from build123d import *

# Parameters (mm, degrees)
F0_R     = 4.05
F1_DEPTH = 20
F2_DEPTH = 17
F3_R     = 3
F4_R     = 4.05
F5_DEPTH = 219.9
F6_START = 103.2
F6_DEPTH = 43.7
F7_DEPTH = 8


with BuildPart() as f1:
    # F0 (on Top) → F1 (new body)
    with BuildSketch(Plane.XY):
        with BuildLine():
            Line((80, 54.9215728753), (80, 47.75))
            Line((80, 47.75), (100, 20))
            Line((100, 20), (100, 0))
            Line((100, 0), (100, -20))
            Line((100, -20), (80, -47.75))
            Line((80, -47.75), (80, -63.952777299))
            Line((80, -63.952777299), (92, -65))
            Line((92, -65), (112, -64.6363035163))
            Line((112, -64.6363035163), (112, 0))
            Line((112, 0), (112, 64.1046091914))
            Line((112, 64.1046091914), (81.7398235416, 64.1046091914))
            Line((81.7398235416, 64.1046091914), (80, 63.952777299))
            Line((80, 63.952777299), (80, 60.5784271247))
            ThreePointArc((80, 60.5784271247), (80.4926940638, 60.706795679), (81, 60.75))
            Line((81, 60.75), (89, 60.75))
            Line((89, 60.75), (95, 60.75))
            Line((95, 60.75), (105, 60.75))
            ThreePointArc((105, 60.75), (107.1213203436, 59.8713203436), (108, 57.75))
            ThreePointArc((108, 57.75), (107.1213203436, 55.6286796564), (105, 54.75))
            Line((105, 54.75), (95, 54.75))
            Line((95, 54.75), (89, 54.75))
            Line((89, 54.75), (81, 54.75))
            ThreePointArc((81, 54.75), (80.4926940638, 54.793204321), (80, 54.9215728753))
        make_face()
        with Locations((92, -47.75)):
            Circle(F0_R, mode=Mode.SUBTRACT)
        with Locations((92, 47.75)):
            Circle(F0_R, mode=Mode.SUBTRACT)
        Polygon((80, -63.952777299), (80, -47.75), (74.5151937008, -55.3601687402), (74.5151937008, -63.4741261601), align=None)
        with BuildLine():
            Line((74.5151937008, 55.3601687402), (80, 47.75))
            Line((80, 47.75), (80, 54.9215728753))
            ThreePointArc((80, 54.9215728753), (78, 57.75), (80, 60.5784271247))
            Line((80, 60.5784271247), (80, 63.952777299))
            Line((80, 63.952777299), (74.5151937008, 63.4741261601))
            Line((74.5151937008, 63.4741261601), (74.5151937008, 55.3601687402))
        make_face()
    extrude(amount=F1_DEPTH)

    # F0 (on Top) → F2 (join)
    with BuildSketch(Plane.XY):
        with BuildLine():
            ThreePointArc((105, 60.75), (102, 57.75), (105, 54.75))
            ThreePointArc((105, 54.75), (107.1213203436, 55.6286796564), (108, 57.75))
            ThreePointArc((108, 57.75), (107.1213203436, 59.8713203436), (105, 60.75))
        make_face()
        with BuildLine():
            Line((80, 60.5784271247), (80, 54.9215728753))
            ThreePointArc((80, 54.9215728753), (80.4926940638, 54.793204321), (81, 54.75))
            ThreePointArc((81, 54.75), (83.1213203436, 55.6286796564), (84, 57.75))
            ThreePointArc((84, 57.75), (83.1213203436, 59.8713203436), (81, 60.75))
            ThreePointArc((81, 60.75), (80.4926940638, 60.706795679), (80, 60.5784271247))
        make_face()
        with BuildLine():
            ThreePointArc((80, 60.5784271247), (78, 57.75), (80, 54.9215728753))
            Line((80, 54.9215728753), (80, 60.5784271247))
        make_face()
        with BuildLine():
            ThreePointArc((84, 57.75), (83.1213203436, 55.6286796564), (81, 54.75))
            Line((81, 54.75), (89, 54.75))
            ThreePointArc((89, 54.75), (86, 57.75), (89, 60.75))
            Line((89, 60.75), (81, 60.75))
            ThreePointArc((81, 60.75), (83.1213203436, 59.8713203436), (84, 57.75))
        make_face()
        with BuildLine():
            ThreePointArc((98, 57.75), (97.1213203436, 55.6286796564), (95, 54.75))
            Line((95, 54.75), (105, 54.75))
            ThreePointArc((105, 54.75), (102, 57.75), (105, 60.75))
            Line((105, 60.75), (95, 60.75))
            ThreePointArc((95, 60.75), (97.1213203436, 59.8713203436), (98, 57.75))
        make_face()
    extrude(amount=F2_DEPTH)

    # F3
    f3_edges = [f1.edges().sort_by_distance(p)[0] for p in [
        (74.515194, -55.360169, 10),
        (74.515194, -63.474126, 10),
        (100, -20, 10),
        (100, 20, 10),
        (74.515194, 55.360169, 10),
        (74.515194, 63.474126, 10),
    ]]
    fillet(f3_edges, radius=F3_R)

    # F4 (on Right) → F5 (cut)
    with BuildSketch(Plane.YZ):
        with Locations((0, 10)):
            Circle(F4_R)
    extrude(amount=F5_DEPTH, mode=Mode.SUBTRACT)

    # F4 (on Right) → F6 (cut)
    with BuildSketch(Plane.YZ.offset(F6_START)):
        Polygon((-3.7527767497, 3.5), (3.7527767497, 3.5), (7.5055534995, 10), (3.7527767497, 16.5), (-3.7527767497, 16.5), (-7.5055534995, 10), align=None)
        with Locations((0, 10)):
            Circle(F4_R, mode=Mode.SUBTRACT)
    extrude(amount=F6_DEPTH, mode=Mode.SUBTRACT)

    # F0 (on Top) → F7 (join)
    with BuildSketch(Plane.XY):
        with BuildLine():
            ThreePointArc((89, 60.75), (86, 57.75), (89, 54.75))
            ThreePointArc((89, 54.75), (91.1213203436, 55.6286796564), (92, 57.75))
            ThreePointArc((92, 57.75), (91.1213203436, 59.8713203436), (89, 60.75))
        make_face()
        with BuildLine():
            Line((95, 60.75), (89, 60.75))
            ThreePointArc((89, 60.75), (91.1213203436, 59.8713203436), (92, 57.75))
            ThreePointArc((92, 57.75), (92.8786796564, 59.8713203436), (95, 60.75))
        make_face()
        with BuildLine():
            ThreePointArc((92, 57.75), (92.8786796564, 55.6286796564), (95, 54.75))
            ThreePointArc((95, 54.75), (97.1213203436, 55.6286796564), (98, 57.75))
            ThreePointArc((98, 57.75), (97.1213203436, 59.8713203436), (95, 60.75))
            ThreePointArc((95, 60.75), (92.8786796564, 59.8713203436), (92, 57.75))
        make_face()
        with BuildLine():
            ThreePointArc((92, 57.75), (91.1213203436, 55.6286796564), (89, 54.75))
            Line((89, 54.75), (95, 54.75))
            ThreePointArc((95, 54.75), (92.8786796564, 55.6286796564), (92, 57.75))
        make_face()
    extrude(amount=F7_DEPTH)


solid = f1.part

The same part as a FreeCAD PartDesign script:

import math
import FreeCAD as App
import Part
import Sketcher
from FreeCAD import Vector
Q = App.Units.Quantity


def edges_at(feature, points):
    """Names of the edges that pass closest to the given points."""
    edges = feature.Shape.Edges
    near = lambda p: min(range(len(edges)), key=lambda i: edges[i].distToShape(Part.Vertex(*p))[0])
    return sorted({f"Edge{near(p) + 1}" for p in points})

doc = App.newDocument("Part")
body = doc.addObject("PartDesign::Body", "Body")

# Sketch on XY plane
sketch1 = body.newObject("Sketcher::SketchObject", "Sketch")
sketch1.AttachmentSupport = (doc.getObject("XY_Plane"), [""])
sketch1.MapMode = "FlatFace"
sketch1.addGeometry(Part.LineSegment(Vector(80, 47.75, 0), Vector(100, 20, 0)), False)
sketch1.addGeometry(Part.LineSegment(Vector(100, 20, 0), Vector(100, -20, 0)), False)
sketch1.addGeometry(Part.LineSegment(Vector(100, -20, 0), Vector(80, -47.75, 0)), False)
sketch1.addGeometry(Part.LineSegment(Vector(80, -47.75, 0), Vector(74.515194, -55.360169, 0)), False)
sketch1.addGeometry(Part.LineSegment(Vector(74.515194, -55.360169, 0), Vector(74.515194, -63.474126, 0)), False)
sketch1.addGeometry(Part.LineSegment(Vector(74.515194, -63.474126, 0), Vector(80, -63.952777, 0)), False)
sketch1.addGeometry(Part.LineSegment(Vector(80, -63.952777, 0), Vector(92, -65, 0)), False)
sketch1.addGeometry(Part.LineSegment(Vector(92, -65, 0), Vector(112, -64.636304, 0)), False)
sketch1.addGeometry(Part.LineSegment(Vector(112, -64.636304, 0), Vector(112, 64.104609, 0)), False)
sketch1.addGeometry(Part.LineSegment(Vector(112, 64.104609, 0), Vector(81.739824, 64.104609, 0)), False)
sketch1.addGeometry(Part.LineSegment(Vector(81.739824, 64.104609, 0), Vector(80, 63.952777, 0)), False)
sketch1.addGeometry(Part.LineSegment(Vector(80, 63.952777, 0), Vector(74.515194, 63.474126, 0)), False)
sketch1.addGeometry(Part.LineSegment(Vector(74.515194, 63.474126, 0), Vector(74.515194, 55.360169, 0)), False)
sketch1.addGeometry(Part.LineSegment(Vector(74.515194, 55.360169, 0), Vector(80, 47.75, 0)), False)
sketch1.addGeometry(Part.ArcOfCircle(Part.Circle(Vector(81, 57.75, 0), Vector(0, 0, 1), 3), math.radians(90), math.radians(109.471221)), False)
sketch1.addGeometry(Part.LineSegment(Vector(81, 60.75, 0), Vector(105, 60.75, 0)), False)
sketch1.addGeometry(Part.ArcOfCircle(Part.Circle(Vector(105, 57.75, 0), Vector(0, 0, 1), 3), math.radians(0), math.radians(90)), False)
sketch1.addGeometry(Part.ArcOfCircle(Part.Circle(Vector(105, 57.75, 0), Vector(0, 0, 1), 3), math.radians(-90), math.radians(0)), False)
sketch1.addGeometry(Part.LineSegment(Vector(105, 54.75, 0), Vector(81, 54.75, 0)), False)
sketch1.addGeometry(Part.ArcOfCircle(Part.Circle(Vector(81, 57.75, 0), Vector(0, 0, 1), 3), math.radians(-109.471221), math.radians(-90)), False)
sketch1.addGeometry(Part.ArcOfCircle(Part.Circle(Vector(81, 57.75, 0), Vector(0, 0, 1), 3), math.radians(109.471221), math.radians(250.528779)), False)
sketch1.addGeometry(Part.Circle(Vector(92, -47.75, 0), Vector(0, 0, 1), 4.05), False)
sketch1.addGeometry(Part.Circle(Vector(92, 47.75, 0), Vector(0, 0, 1), 4.05), False)
sketch1.addConstraint(Sketcher.Constraint("Coincident", 0, 2, 1, 1))
sketch1.addConstraint(Sketcher.Constraint("Coincident", 1, 2, 2, 1))
sketch1.addConstraint(Sketcher.Constraint("Coincident", 2, 2, 3, 1))
sketch1.addConstraint(Sketcher.Constraint("Coincident", 3, 2, 4, 1))
sketch1.addConstraint(Sketcher.Constraint("Coincident", 4, 2, 5, 1))
sketch1.addConstraint(Sketcher.Constraint("Coincident", 5, 2, 6, 1))
sketch1.addConstraint(Sketcher.Constraint("Coincident", 6, 2, 7, 1))
sketch1.addConstraint(Sketcher.Constraint("Coincident", 7, 2, 8, 1))
sketch1.addConstraint(Sketcher.Constraint("Coincident", 8, 2, 9, 1))
sketch1.addConstraint(Sketcher.Constraint("Coincident", 9, 2, 10, 1))
sketch1.addConstraint(Sketcher.Constraint("Coincident", 10, 2, 11, 1))
sketch1.addConstraint(Sketcher.Constraint("Coincident", 11, 2, 12, 1))
sketch1.addConstraint(Sketcher.Constraint("Coincident", 12, 2, 13, 1))
sketch1.addConstraint(Sketcher.Constraint("Coincident", 13, 2, 0, 1))
sketch1.addConstraint(Sketcher.Constraint("Tangent", 14, 1, 15, 1))
sketch1.addConstraint(Sketcher.Constraint("Tangent", 15, 2, 16, 2))
sketch1.addConstraint(Sketcher.Constraint("Tangent", 16, 1, 17, 2))
sketch1.addConstraint(Sketcher.Constraint("Tangent", 17, 1, 18, 1))
sketch1.addConstraint(Sketcher.Constraint("Tangent", 18, 2, 19, 2))
sketch1.addConstraint(Sketcher.Constraint("Tangent", 19, 1, 20, 2))
sketch1.addConstraint(Sketcher.Constraint("Tangent", 20, 1, 14, 2))
sketch1.addConstraint(Sketcher.Constraint("Vertical", 1))
sketch1.addConstraint(Sketcher.Constraint("Vertical", 4))
sketch1.addConstraint(Sketcher.Constraint("Vertical", 8))
sketch1.addConstraint(Sketcher.Constraint("Horizontal", 9))
sketch1.addConstraint(Sketcher.Constraint("Vertical", 12))
sketch1.addConstraint(Sketcher.Constraint("Horizontal", 15))
sketch1.addConstraint(Sketcher.Constraint("Horizontal", 18))
sketch1.addConstraint(Sketcher.Constraint("Coincident", 19, 3, 14, 3))
sketch1.addConstraint(Sketcher.Constraint("Equal", 14, 16))
sketch1.addConstraint(Sketcher.Constraint("Equal", 21, 22))
sketch1.addConstraint(Sketcher.Constraint("Symmetric", 21, 3, 22, 3, -1))
sketch1.addConstraint(Sketcher.Constraint("Symmetric", 5, 2, 10, 2, -1))
sketch1.addConstraint(Sketcher.Constraint("Symmetric", 4, 2, 11, 2, -1))
sketch1.addConstraint(Sketcher.Constraint("Symmetric", 2, 2, 13, 2, -1))
sketch1.addConstraint(Sketcher.Constraint("Parallel", 2, 3))
sketch1.addConstraint(Sketcher.Constraint("Parallel", 5, 6))
sketch1.addConstraint(Sketcher.Constraint("Parallel", 10, 11))
sketch1.addConstraint(Sketcher.Constraint("Parallel", 0, 13))
sketch1.addConstraint(Sketcher.Constraint("Horizontal", 21, 3, 2, 2))
sketch1.addConstraint(Sketcher.Constraint("Horizontal", 20, 3, 16, 1))
sketch1.addConstraint(Sketcher.Constraint("Vertical", 2, 2, 5, 2))
sketch1.addConstraint(Sketcher.Constraint("Vertical", 22, 3, 6, 2))
sketch1.addConstraint(Sketcher.Constraint("Vertical", 13, 2, 19, 1))
sketch1.addConstraint(Sketcher.Constraint("Vertical", 19, 1, 20, 1))
sketch1.addConstraint(Sketcher.Constraint("Equal", 4, 12))
sketch1.addConstraint(Sketcher.Constraint("Radius", 14, Q("3 mm")))
sketch1.addConstraint(Sketcher.Constraint("Diameter", 21, Q("8.1 mm")))
sketch1.addConstraint(Sketcher.Constraint("DistanceX", 15, 1, 15, 2, Q("24 mm")))
sketch1.addConstraint(Sketcher.Constraint("DistanceY", 1, 2, 1, 1, Q("40 mm")))
sketch1.addConstraint(Sketcher.Constraint("DistanceX", -1, 1, 14, 3, Q("81 mm")))
sketch1.addConstraint(Sketcher.Constraint("DistanceX", -1, 1, 21, 3, Q("92 mm")))
sketch1.addConstraint(Sketcher.Constraint("DistanceX", -1, 1, 0, 2, Q("100 mm")))
sketch1.addConstraint(Sketcher.Constraint("DistanceX", -1, 1, 2, 2, Q("80 mm")))
sketch1.addConstraint(Sketcher.Constraint("DistanceY", 6, 2, -1, 1, Q("65 mm")))
sketch1.addConstraint(Sketcher.Constraint("DistanceX", -1, 1, 7, 2, Q("112 mm")))
sketch1.addConstraint(Sketcher.Constraint("DistanceY", 22, 3, 19, 3, Q("10 mm")))
sketch1.addConstraint(Sketcher.Constraint("DistanceY", 21, 3, 19, 3, Q("105.5 mm")))
sketch1.addConstraint(Sketcher.Constraint("Distance", 6, Q("12.045608 mm")))
sketch1.addConstraint(Sketcher.Constraint("DistanceX", 9, 2, 9, 1, Q("30.260176 mm")))
sketch1.addConstraint(Sketcher.Constraint("DistanceY", 4, 2, 4, 1, Q("8.113957 mm")))
sketch1.addConstraint(Sketcher.Constraint("DistanceY", 8, 1, 8, 2, Q("128.740913 mm")))
pad1 = body.newObject("PartDesign::Pad", "Pad")
pad1.Profile = sketch1
pad1.Length = 20

# Sketch on XY plane
sketch2 = body.newObject("Sketcher::SketchObject", "Sketch001")
sketch2.AttachmentSupport = (doc.getObject("XY_Plane"), [""])
sketch2.MapMode = "FlatFace"
sketch2.addGeometry(Part.ArcOfCircle(Part.Circle(Vector(105, 57.75, 0), Vector(0, 0, 1), 3), math.radians(-90), math.radians(0)), False)
sketch2.addGeometry(Part.ArcOfCircle(Part.Circle(Vector(105, 57.75, 0), Vector(0, 0, 1), 3), math.radians(0), math.radians(90)), False)
sketch2.addGeometry(Part.LineSegment(Vector(105, 60.75, 0), Vector(95, 60.75, 0)), False)
sketch2.addGeometry(Part.ArcOfCircle(Part.Circle(Vector(95, 57.75, 0), Vector(0, 0, 1), 3), math.radians(0), math.radians(90)), False)
sketch2.addGeometry(Part.ArcOfCircle(Part.Circle(Vector(95, 57.75, 0), Vector(0, 0, 1), 3), math.radians(-90), math.radians(0)), False)
sketch2.addGeometry(Part.LineSegment(Vector(95, 54.75, 0), Vector(105, 54.75, 0)), False)
sketch2.addGeometry(Part.ArcOfCircle(Part.Circle(Vector(81, 57.75, 0), Vector(0, 0, 1), 3), math.radians(-109.471221), math.radians(-90)), False)
sketch2.addGeometry(Part.LineSegment(Vector(81, 54.75, 0), Vector(89, 54.75, 0)), False)
sketch2.addGeometry(Part.ArcOfCircle(Part.Circle(Vector(89, 57.75, 0), Vector(0, 0, 1), 3), math.radians(90), math.radians(270)), False)
sketch2.addGeometry(Part.LineSegment(Vector(89, 60.75, 0), Vector(81, 60.75, 0)), False)
sketch2.addGeometry(Part.ArcOfCircle(Part.Circle(Vector(81, 57.75, 0), Vector(0, 0, 1), 3), math.radians(90), math.radians(109.471221)), False)
sketch2.addGeometry(Part.ArcOfCircle(Part.Circle(Vector(81, 57.75, 0), Vector(0, 0, 1), 3), math.radians(109.471221), math.radians(250.528779)), False)
sketch2.addConstraint(Sketcher.Constraint("Tangent", 0, 2, 1, 1))
sketch2.addConstraint(Sketcher.Constraint("Tangent", 1, 2, 2, 1))
sketch2.addConstraint(Sketcher.Constraint("Tangent", 2, 2, 3, 2))
sketch2.addConstraint(Sketcher.Constraint("Tangent", 3, 1, 4, 2))
sketch2.addConstraint(Sketcher.Constraint("Tangent", 4, 1, 5, 1))
sketch2.addConstraint(Sketcher.Constraint("Tangent", 5, 2, 0, 1))
sketch2.addConstraint(Sketcher.Constraint("Tangent", 6, 2, 7, 1))
sketch2.addConstraint(Sketcher.Constraint("Tangent", 7, 2, 8, 2))
sketch2.addConstraint(Sketcher.Constraint("Tangent", 8, 1, 9, 1))
sketch2.addConstraint(Sketcher.Constraint("Tangent", 9, 2, 10, 1))
sketch2.addConstraint(Sketcher.Constraint("Tangent", 10, 2, 11, 1))
sketch2.addConstraint(Sketcher.Constraint("Tangent", 11, 2, 6, 1))
sketch2.addConstraint(Sketcher.Constraint("Horizontal", 2))
sketch2.addConstraint(Sketcher.Constraint("Horizontal", 5))
sketch2.addConstraint(Sketcher.Constraint("Horizontal", 7))
sketch2.addConstraint(Sketcher.Constraint("Horizontal", 9))
sketch2.addConstraint(Sketcher.Constraint("Coincident", 10, 3, 6, 3))
sketch2.addConstraint(Sketcher.Constraint("Equal", 0, 1))
sketch2.addConstraint(Sketcher.Constraint("Equal", 1, 3))
sketch2.addConstraint(Sketcher.Constraint("Equal", 4, 6))
sketch2.addConstraint(Sketcher.Constraint("Horizontal", 4, 3, 6, 3))
sketch2.addConstraint(Sketcher.Constraint("Horizontal", 11, 3, 0, 2))
sketch2.addConstraint(Sketcher.Constraint("Horizontal", 0, 2, 3, 1))
sketch2.addConstraint(Sketcher.Constraint("Vertical", 10, 2, 11, 2))
sketch2.addConstraint(Sketcher.Constraint("Radius", 0, Q("3 mm")))
sketch2.addConstraint(Sketcher.Constraint("DistanceX", 2, 2, 2, 1, Q("10 mm")))
sketch2.addConstraint(Sketcher.Constraint("DistanceX", 7, 1, 7, 2, Q("8 mm")))
sketch2.addConstraint(Sketcher.Constraint("DistanceX", -1, 1, 0, 3, Q("105 mm")))
sketch2.addConstraint(Sketcher.Constraint("DistanceX", -1, 1, 6, 3, Q("81 mm")))
sketch2.addConstraint(Sketcher.Constraint("DistanceX", -1, 1, 10, 2, Q("80 mm")))
sketch2.addConstraint(Sketcher.Constraint("DistanceY", -1, 1, 0, 3, Q("57.75 mm")))
pad2 = body.newObject("PartDesign::Pad", "Pad001")
pad2.Profile = sketch2
pad2.Length = 17
doc.recompute()

fillet = body.newObject("PartDesign::Fillet", "Fillet")
fillet.Base = (pad2, edges_at(pad2, [
    (74.515, -55.36, 10),
    (74.515, -63.474, 10),
    (100, -20, 10),
    (100, 20, 10),
    (74.515, 55.36, 10),
    (74.515, 63.474, 10),
]))
fillet.Radius = 3

# Sketch on YZ plane
sketch3 = body.newObject("Sketcher::SketchObject", "Sketch002")
sketch3.AttachmentSupport = (doc.getObject("YZ_Plane"), [""])
sketch3.MapMode = "FlatFace"
sketch3.addGeometry(Part.Circle(Vector(0, 10, 0), Vector(0, 0, 1), 4.05), False)
sketch3.addConstraint(Sketcher.Constraint("PointOnObject", 0, 3, -2))
sketch3.addConstraint(Sketcher.Constraint("Diameter", 0, Q("8.1 mm")))
sketch3.addConstraint(Sketcher.Constraint("DistanceY", -1, 1, 0, 3, Q("10 mm")))
pocket1 = body.newObject("PartDesign::Pocket", "Pocket")
pocket1.Profile = sketch3
pocket1.Length = 219.9
pocket1.Reversed = True

# Sketch on YZ plane
sketch4 = body.newObject("Sketcher::SketchObject", "Sketch003")
sketch4.AttachmentSupport = (doc.getObject("YZ_Plane"), [""])
sketch4.MapMode = "FlatFace"
sketch4.AttachmentOffset = App.Placement(Vector(0, 0, 103.2), App.Rotation())
sketch4.addGeometry(Part.LineSegment(Vector(-3.752777, 3.5, 0), Vector(3.752777, 3.5, 0)), False)
sketch4.addGeometry(Part.LineSegment(Vector(3.752777, 3.5, 0), Vector(7.505554, 10, 0)), False)
sketch4.addGeometry(Part.LineSegment(Vector(7.505554, 10, 0), Vector(3.752777, 16.5, 0)), False)
sketch4.addGeometry(Part.LineSegment(Vector(3.752777, 16.5, 0), Vector(-3.752777, 16.5, 0)), False)
sketch4.addGeometry(Part.LineSegment(Vector(-3.752777, 16.5, 0), Vector(-7.505554, 10, 0)), False)
sketch4.addGeometry(Part.LineSegment(Vector(-7.505554, 10, 0), Vector(-3.752777, 3.5, 0)), False)
sketch4.addGeometry(Part.Circle(Vector(0, 10, 0), Vector(0, 0, 1), 4.05), False)
sketch4.addConstraint(Sketcher.Constraint("Coincident", 0, 2, 1, 1))
sketch4.addConstraint(Sketcher.Constraint("Coincident", 1, 2, 2, 1))
sketch4.addConstraint(Sketcher.Constraint("Coincident", 2, 2, 3, 1))
sketch4.addConstraint(Sketcher.Constraint("Coincident", 3, 2, 4, 1))
sketch4.addConstraint(Sketcher.Constraint("Coincident", 4, 2, 5, 1))
sketch4.addConstraint(Sketcher.Constraint("Coincident", 5, 2, 0, 1))
sketch4.addConstraint(Sketcher.Constraint("Horizontal", 0))
sketch4.addConstraint(Sketcher.Constraint("Horizontal", 3))
sketch4.addConstraint(Sketcher.Constraint("Symmetric", 1, 2, 4, 2, -2))
sketch4.addConstraint(Sketcher.Constraint("PointOnObject", 6, 3, -2))
sketch4.addConstraint(Sketcher.Constraint("Parallel", 1, 4))
sketch4.addConstraint(Sketcher.Constraint("Parallel", 2, 5))
sketch4.addConstraint(Sketcher.Constraint("Horizontal", 6, 3, 1, 2))
sketch4.addConstraint(Sketcher.Constraint("Vertical", 0, 2, 2, 2))
sketch4.addConstraint(Sketcher.Constraint("Vertical", 3, 2, 5, 2))
sketch4.addConstraint(Sketcher.Constraint("Diameter", 6, Q("8.1 mm")))
sketch4.addConstraint(Sketcher.Constraint("Angle", 1, Q("60 deg")))
sketch4.addConstraint(Sketcher.Constraint("DistanceY", -1, 1, 6, 3, Q("10 mm")))
sketch4.addConstraint(Sketcher.Constraint("DistanceY", 0, 2, 2, 2, Q("13 mm")))
sketch4.addConstraint(Sketcher.Constraint("DistanceX", 0, 1, 0, 2, Q("7.505554 mm")))
pocket2 = body.newObject("PartDesign::Pocket", "Pocket001")
pocket2.Profile = sketch4
pocket2.Length = 43.7
pocket2.Reversed = True

# Sketch on XY plane
sketch5 = body.newObject("Sketcher::SketchObject", "Sketch004")
sketch5.AttachmentSupport = (doc.getObject("XY_Plane"), [""])
sketch5.MapMode = "FlatFace"
sketch5.addGeometry(Part.ArcOfCircle(Part.Circle(Vector(89, 57.75, 0), Vector(0, 0, 1), 3), math.radians(90), math.radians(270)), False)
sketch5.addGeometry(Part.LineSegment(Vector(89, 54.75, 0), Vector(95, 54.75, 0)), False)
sketch5.addGeometry(Part.ArcOfCircle(Part.Circle(Vector(95, 57.75, 0), Vector(0, 0, 1), 3), math.radians(-90), math.radians(0)), False)
sketch5.addGeometry(Part.ArcOfCircle(Part.Circle(Vector(95, 57.75, 0), Vector(0, 0, 1), 3), math.radians(0), math.radians(90)), False)
sketch5.addGeometry(Part.LineSegment(Vector(95, 60.75, 0), Vector(89, 60.75, 0)), False)
sketch5.addConstraint(Sketcher.Constraint("Tangent", 0, 2, 1, 1))
sketch5.addConstraint(Sketcher.Constraint("Tangent", 1, 2, 2, 1))
sketch5.addConstraint(Sketcher.Constraint("Tangent", 2, 2, 3, 1))
sketch5.addConstraint(Sketcher.Constraint("Tangent", 3, 2, 4, 1))
sketch5.addConstraint(Sketcher.Constraint("Tangent", 4, 2, 0, 1))
sketch5.addConstraint(Sketcher.Constraint("Horizontal", 1))
sketch5.addConstraint(Sketcher.Constraint("Horizontal", 4))
sketch5.addConstraint(Sketcher.Constraint("Equal", 0, 2))
sketch5.addConstraint(Sketcher.Constraint("Horizontal", 3, 3, 2, 2))
sketch5.addConstraint(Sketcher.Constraint("Radius", 0, Q("3 mm")))
sketch5.addConstraint(Sketcher.Constraint("DistanceX", 1, 1, 1, 2, Q("6 mm")))
sketch5.addConstraint(Sketcher.Constraint("DistanceX", -1, 1, 0, 3, Q("89 mm")))
sketch5.addConstraint(Sketcher.Constraint("DistanceY", -1, 1, 0, 3, Q("57.75 mm")))
pad3 = body.newObject("PartDesign::Pad", "Pad002")
pad3.Profile = sketch5
pad3.Length = 8

doc.recompute()
